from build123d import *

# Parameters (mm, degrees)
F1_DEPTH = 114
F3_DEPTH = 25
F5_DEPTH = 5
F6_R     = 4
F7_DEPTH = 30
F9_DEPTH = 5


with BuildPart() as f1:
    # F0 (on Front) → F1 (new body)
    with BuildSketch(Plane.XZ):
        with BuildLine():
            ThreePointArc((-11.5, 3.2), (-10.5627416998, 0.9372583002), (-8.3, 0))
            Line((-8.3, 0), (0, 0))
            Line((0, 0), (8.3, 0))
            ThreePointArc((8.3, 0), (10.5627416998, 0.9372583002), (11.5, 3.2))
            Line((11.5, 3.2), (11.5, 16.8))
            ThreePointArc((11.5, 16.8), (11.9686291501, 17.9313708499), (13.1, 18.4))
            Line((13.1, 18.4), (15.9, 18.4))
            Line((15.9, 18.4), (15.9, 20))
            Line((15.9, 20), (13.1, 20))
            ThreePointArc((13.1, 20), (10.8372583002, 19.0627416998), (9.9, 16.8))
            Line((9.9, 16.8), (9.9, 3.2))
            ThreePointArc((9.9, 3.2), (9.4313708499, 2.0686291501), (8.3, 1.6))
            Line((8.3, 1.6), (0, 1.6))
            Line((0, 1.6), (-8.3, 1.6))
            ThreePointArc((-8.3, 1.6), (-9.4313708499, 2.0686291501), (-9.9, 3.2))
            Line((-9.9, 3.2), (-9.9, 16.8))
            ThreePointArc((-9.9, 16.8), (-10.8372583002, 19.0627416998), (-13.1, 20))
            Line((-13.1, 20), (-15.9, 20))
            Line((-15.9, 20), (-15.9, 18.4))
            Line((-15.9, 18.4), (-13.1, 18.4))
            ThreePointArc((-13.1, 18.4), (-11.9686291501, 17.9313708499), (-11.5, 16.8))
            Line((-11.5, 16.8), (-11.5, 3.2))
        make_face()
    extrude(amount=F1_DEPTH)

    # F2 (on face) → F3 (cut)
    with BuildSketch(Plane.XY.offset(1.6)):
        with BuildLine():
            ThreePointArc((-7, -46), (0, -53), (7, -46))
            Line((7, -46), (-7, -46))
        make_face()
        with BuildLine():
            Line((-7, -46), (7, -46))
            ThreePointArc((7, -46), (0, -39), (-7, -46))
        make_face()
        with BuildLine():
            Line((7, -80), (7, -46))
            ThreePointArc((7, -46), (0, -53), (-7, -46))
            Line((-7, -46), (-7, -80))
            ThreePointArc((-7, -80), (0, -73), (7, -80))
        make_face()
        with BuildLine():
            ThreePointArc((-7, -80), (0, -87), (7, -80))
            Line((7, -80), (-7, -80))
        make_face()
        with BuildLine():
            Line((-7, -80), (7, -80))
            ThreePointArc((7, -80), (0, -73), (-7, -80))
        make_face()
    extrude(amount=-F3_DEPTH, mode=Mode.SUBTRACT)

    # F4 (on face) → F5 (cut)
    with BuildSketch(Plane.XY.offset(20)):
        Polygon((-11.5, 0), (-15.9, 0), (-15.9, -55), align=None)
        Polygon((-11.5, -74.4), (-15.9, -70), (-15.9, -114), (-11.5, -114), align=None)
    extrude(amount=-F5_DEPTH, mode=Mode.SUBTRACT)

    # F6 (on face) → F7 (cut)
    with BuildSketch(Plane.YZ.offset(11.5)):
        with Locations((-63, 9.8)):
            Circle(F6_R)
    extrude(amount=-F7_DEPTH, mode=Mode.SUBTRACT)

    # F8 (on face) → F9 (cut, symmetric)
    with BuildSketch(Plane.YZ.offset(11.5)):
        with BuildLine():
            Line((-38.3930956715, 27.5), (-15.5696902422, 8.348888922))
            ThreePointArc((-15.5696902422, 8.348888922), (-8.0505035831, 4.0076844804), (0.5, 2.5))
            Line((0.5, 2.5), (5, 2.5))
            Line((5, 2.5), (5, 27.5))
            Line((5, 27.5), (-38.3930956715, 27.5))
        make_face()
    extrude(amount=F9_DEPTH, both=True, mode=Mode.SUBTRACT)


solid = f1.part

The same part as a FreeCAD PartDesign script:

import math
import FreeCAD as App
import Part
import Sketcher
from FreeCAD import Vector
Q = App.Units.Quantity


def add_polygon(sketch, points):
    """Adds a closed chain of lines whose ends are joined by coincident constraints."""
    first, n = sketch.GeometryCount, len(points)
    for a, b in zip(points, points[1:] + points[:1]):
        sketch.addGeometry(Part.LineSegment(App.Vector(*a, 0), App.Vector(*b, 0)), False)
    for i in range(n):
        sketch.addConstraint(Sketcher.Constraint("Coincident", first + i, 2, first + (i + 1) % n, 1))

doc = App.newDocument("Part")
body = doc.addObject("PartDesign::Body", "Body")

sketch1 = body.newObject("Sketcher::SketchObject", "Sketch")
sketch1.AttachmentSupport = (doc.getObject("XZ_Plane"), [""])
sketch1.MapMode = "FlatFace"
sketch1.addGeometry(Part.ArcOfCircle(Part.Circle(Vector(-8.3, 3.2, 0), Vector(0, 0, 1), 3.2), math.radians(180), math.radians(270)), False)
sketch1.addGeometry(Part.LineSegment(Vector(-8.3, 0, 0), Vector(8.3, 0, 0)), False)
sketch1.addGeometry(Part.ArcOfCircle(Part.Circle(Vector(8.3, 3.2, 0), Vector(0, 0, 1), 3.2), math.radians(-90), math.radians(0)), False)
sketch1.addGeometry(Part.LineSegment(Vector(11.5, 3.2, 0), Vector(11.5, 16.8, 0)), False)
sketch1.addGeometry(Part.ArcOfCircle(Part.Circle(Vector(13.1, 16.8, 0), Vector(0, 0, 1), 1.6), math.radians(90), math.radians(180)), False)
sketch1.addGeometry(Part.LineSegment(Vector(13.1, 18.4, 0), Vector(15.9, 18.4, 0)), False)
sketch1.addGeometry(Part.LineSegment(Vector(15.9, 18.4, 0), Vector(15.9, 20, 0)), False)
sketch1.addGeometry(Part.LineSegment(Vector(15.9, 20, 0), Vector(13.1, 20, 0)), False)
sketch1.addGeometry(Part.ArcOfCircle(Part.Circle(Vector(13.1, 16.8, 0), Vector(0, 0, 1), 3.2), math.radians(90), math.radians(180)), False)
sketch1.addGeometry(Part.LineSegment(Vector(9.9, 16.8, 0), Vector(9.9, 3.2, 0)), False)
sketch1.addGeometry(Part.ArcOfCircle(Part.Circle(Vector(8.3, 3.2, 0), Vector(0, 0, 1), 1.6), math.radians(-90), math.radians(0)), False)
sketch1.addGeometry(Part.LineSegment(Vector(8.3, 1.6, 0), Vector(-8.3, 1.6, 0)), False)
sketch1.addGeometry(Part.ArcOfCircle(Part.Circle(Vector(-8.3, 3.2, 0), Vector(0, 0, 1), 1.6), math.radians(180), math.radians(270)), False)
sketch1.addGeometry(Part.LineSegment(Vector(-9.9, 3.2, 0), Vector(-9.9, 16.8, 0)), False)
sketch1.addGeometry(Part.ArcOfCircle(Part.Circle(Vector(-13.1, 16.8, 0), Vector(0, 0, 1), 3.2), math.radians(0), math.radians(90)), False)
sketch1.addGeometry(Part.LineSegment(Vector(-13.1, 20, 0), Vector(-15.9, 20, 0)), False)
sketch1.addGeometry(Part.LineSegment(Vector(-15.9, 20, 0), Vector(-15.9, 18.4, 0)), False)
sketch1.addGeometry(Part.LineSegment(Vector(-15.9, 18.4, 0), Vector(-13.1, 18.4, 0)), False)
sketch1.addGeometry(Part.ArcOfCircle(Part.Circle(Vector(-13.1, 16.8, 0), Vector(0, 0, 1), 1.6), math.radians(0), math.radians(90)), False)
sketch1.addGeometry(Part.LineSegment(Vector(-11.5, 16.8, 0), Vector(-11.5, 3.2, 0)), False)
sketch1.addConstraint(Sketcher.Constraint("Tangent", 0, 2, 1, 1))
sketch1.addConstraint(Sketcher.Constraint("Tangent", 1, 2, 2, 1))
sketch1.addConstraint(Sketcher.Constraint("Tangent", 2, 2, 3, 1))
sketch1.addConstraint(Sketcher.Constraint("Tangent", 3, 2, 4, 2))
sketch1.addConstraint(Sketcher.Constraint("Tangent", 4, 1, 5, 1))
sketch1.addConstraint(Sketcher.Constraint("Coincident", 5, 2, 6, 1))
sketch1.addConstraint(Sketcher.Constraint("Coincident", 6, 2, 7, 1))
sketch1.addConstraint(Sketcher.Constraint("Tangent", 7, 2, 8, 1))
sketch1.addConstraint(Sketcher.Constraint("Tangent", 8, 2, 9, 1))
sketch1.addConstraint(Sketcher.Constraint("Tangent", 9, 2, 10, 2))
sketch1.addConstraint(Sketcher.Constraint("Tangent", 10, 1, 11, 1))
sketch1.addConstraint(Sketcher.Constraint("Tangent", 11, 2, 12, 2))
sketch1.addConstraint(Sketcher.Constraint("Tangent", 12, 1, 13, 1))
sketch1.addConstraint(Sketcher.Constraint("Tangent", 13, 2, 14, 1))
sketch1.addConstraint(Sketcher.Constraint("Tangent", 14, 2, 15, 1))
sketch1.addConstraint(Sketcher.Constraint("Coincident", 15, 2, 16, 1))
sketch1.addConstraint(Sketcher.Constraint("Coincident", 16, 2, 17, 1))
sketch1.addConstraint(Sketcher.Constraint("Tangent", 17, 2, 18, 2))
sketch1.addConstraint(Sketcher.Constraint("Tangent", 18, 1, 19, 1))
sketch1.addConstraint(Sketcher.Constraint("Tangent", 19, 2, 0, 1))
sketch1.addConstraint(Sketcher.Constraint("Horizontal", 1))
sketch1.addConstraint(Sketcher.Constraint("Vertical", 3))
sketch1.addConstraint(Sketcher.Constraint("Horizontal", 5))
sketch1.addConstraint(Sketcher.Constraint("Vertical", 6))
sketch1.addConstraint(Sketcher.Constraint("Horizontal", 7))
sketch1.addConstraint(Sketcher.Constraint("Vertical", 9))
sketch1.addConstraint(Sketcher.Constraint("Horizontal", 11))
sketch1.addConstraint(Sketcher.Constraint("Vertical", 13))
sketch1.addConstraint(Sketcher.Constraint("Horizontal", 15))
sketch1.addConstraint(Sketcher.Constraint("Vertical", 16))
sketch1.addConstraint(Sketcher.Constraint("Horizontal", 17))
sketch1.addConstraint(Sketcher.Constraint("Vertical", 19))
sketch1.addConstraint(Sketcher.Constraint("Coincident", 8, 3, 4, 3))
sketch1.addConstraint(Sketcher.Constraint("Coincident", 10, 3, 2, 3))
sketch1.addConstraint(Sketcher.Constraint("Coincident", 12, 3, 0, 3))
sketch1.addConstraint(Sketcher.Constraint("Coincident", 18, 3, 14, 3))
sketch1.addConstraint(Sketcher.Constraint("Equal", 0, 2))
sketch1.addConstraint(Sketcher.Constraint("Equal", 2, 8))
sketch1.addConstraint(Sketcher.Constraint("Equal", 8, 14))
sketch1.addConstraint(Sketcher.Constraint("Symmetric", 0, 2, 1, 2, -1, 1))
sketch1.addConstraint(Sketcher.Constraint("Symmetric", 6, 2, 15, 2, -2))
sketch1.addConstraint(Sketcher.Constraint("Radius", 0, 3.2))
sketch1.addConstraint(Sketcher.Constraint("Radius", 4, 1.6))
sketch1.addConstraint(Sketcher.Constraint("DistanceX", 1, 1, 1, 2, 16.6))
sketch1.addConstraint(Sketcher.Constraint("DistanceX", 5, 1, 5, 2, 2.8))
sketch1.addConstraint(Sketcher.Constraint("DistanceY", 3, 1, 3, 2, 13.6))
pad1 = body.newObject("PartDesign::Pad", "Pad")
pad1.Profile = sketch1
pad1.Length = 114

sketch2 = body.newObject("Sketcher::SketchObject", "Sketch001")
sketch2.AttachmentSupport = (doc.getObject("XY_Plane"), [""])
sketch2.MapMode = "FlatFace"
sketch2.AttachmentOffset = App.Placement(Vector(0, 0, 1.6), App.Rotation())
sketch2.addGeometry(Part.ArcOfCircle(Part.Circle(Vector(0, -46, 0), Vector(0, 0, 1), 7), math.radians(0), math.radians(180)), False)
sketch2.addGeometry(Part.LineSegment(Vector(-7, -46, 0), Vector(-7, -80, 0)), False)
sketch2.addGeometry(Part.ArcOfCircle(Part.Circle(Vector(0, -80, 0), Vector(0, 0, 1), 7), math.radians(180), math.radians(360)), False)
sketch2.addGeometry(Part.LineSegment(Vector(7, -80, 0), Vector(7, -46, 0)), False)
sketch2.addConstraint(Sketcher.Constraint("Tangent", 0, 2, 1, 1))
sketch2.addConstraint(Sketcher.Constraint("Tangent", 1, 2, 2, 1))
sketch2.addConstraint(Sketcher.Constraint("Tangent", 2, 2, 3, 1))
sketch2.addConstraint(Sketcher.Constraint("Tangent", 3, 2, 0, 1))
sketch2.addConstraint(Sketcher.Constraint("Vertical", 1))
sketch2.addConstraint(Sketcher.Constraint("Vertical", 3))
sketch2.addConstraint(Sketcher.Constraint("PointOnObject", 0, 3, -2))
sketch2.addConstraint(Sketcher.Constraint("Radius", 0, 7.0))
sketch2.addConstraint(Sketcher.Constraint("DistanceY", 1, 2, 1, 1, 34.0))
sketch2.addConstraint(Sketcher.Constraint("DistanceY", 0, 3, -1, 1, 46.0))
pocket1 = body.newObject("PartDesign::Pocket", "Pocket")
pocket1.Profile = sketch2
pocket1.Length = 25

sketch3 = body.newObject("Sketcher::SketchObject", "Sketch002")
sketch3.AttachmentSupport = (doc.getObject("XY_Plane"), [""])
sketch3.MapMode = "FlatFace"
sketch3.AttachmentOffset = App.Placement(Vector(0, 0, 20), App.Rotation())
add_polygon(sketch3, [(-11.5, 0), (-15.9, 0), (-15.9, -55)])
add_polygon(sketch3, [(-11.5, -74.4), (-15.9, -70), (-15.9, -114), (-11.5, -114)])
sketch3.addConstraint(Sketcher.Constraint("Horizontal", 0))
sketch3.addConstraint(Sketcher.Constraint("Vertical", 1))
sketch3.addConstraint(Sketcher.Constraint("Vertical", 4))
sketch3.addConstraint(Sketcher.Constraint("Horizontal", 5))
sketch3.addConstraint(Sketcher.Constraint("Vertical", 6))
sketch3.addConstraint(Sketcher.Constraint("PointOnObject", 0, 2, -1))
sketch3.addConstraint(Sketcher.Constraint("Vertical", 1, 2, 3, 2))
sketch3.addConstraint(Sketcher.Constraint("Vertical", 2, 2, 5, 2))
sketch3.addConstraint(Sketcher.Constraint("DistanceY", 1, 2, 1, 1, 55.0))
sketch3.addConstraint(Sketcher.Constraint("DistanceY", 4, 2, 4, 1, 44.0))
sketch3.addConstraint(Sketcher.Constraint("Angle", 3, Q("135 deg")))
sketch3.addConstraint(Sketcher.Constraint("DistanceX", 0, 2, 0, 1, 4.4))
sketch3.addConstraint(Sketcher.Constraint("DistanceY", 3, 2, -1, 1, 70.0))
sketch3.addConstraint(Sketcher.Constraint("DistanceX", 0, 2, -1, 1, 15.9))
pocket2 = body.newObject("PartDesign::Pocket", "Pocket001")
pocket2.Profile = sketch3
pocket2.Length = 5

sketch4 = body.newObject("Sketcher::SketchObject", "Sketch003")
sketch4.AttachmentSupport = (doc.getObject("YZ_Plane"), [""])
sketch4.MapMode = "FlatFace"
sketch4.AttachmentOffset = App.Placement(Vector(0, 0, 11.5), App.Rotation())
sketch4.addGeometry(Part.Circle(Vector(-63, 9.8, 0), Vector(0, 0, 1), 4), False)
sketch4.addConstraint(Sketcher.Constraint("Diameter", 0, 8.0))
sketch4.addConstraint(Sketcher.Constraint("DistanceX", 0, 3, -1, 1, 63.0))
sketch4.addConstraint(Sketcher.Constraint("DistanceY", -1, 1, 0, 3, 9.8))
pocket3 = body.newObject("PartDesign::Pocket", "Pocket002")
pocket3.Profile = sketch4
pocket3.Length = 30

sketch5 = body.newObject("Sketcher::SketchObject", "Sketch004")
sketch5.AttachmentSupport = (doc.getObject("YZ_Plane"), [""])
sketch5.MapMode = "FlatFace"
sketch5.AttachmentOffset = App.Placement(Vector(0, 0, 11.5), App.Rotation())
sketch5.addGeometry(Part.LineSegment(Vector(-38.4, 27.5, 0), Vector(-15.6, 8.3, 0)), False)
sketch5.addGeometry(Part.ArcOfCircle(Part.Circle(Vector(0.5, 27.5, 0), Vector(0, 0, 1), 25), math.radians(-130), math.radians(-90)), False)
sketch5.addGeometry(Part.LineSegment(Vector(0.5, 2.5, 0), Vector(5, 2.5, 0)), False)
sketch5.addGeometry(Part.LineSegment(Vector(5, 2.5, 0), Vector(5, 27.5, 0)), False)
sketch5.addGeometry(Part.LineSegment(Vector(5, 27.5, 0), Vector(-38.4, 27.5, 0)), False)
sketch5.addConstraint(Sketcher.Constraint("Tangent", 0, 2, 1, 1))
sketch5.addConstraint(Sketcher.Constraint("Tangent", 1, 2, 2, 1))
sketch5.addConstraint(Sketcher.Constraint("Coincident", 2, 2, 3, 1))
sketch5.addConstraint(Sketcher.Constraint("Coincident", 3, 2, 4, 1))
sketch5.addConstraint(Sketcher.Constraint("Coincident", 4, 2, 0, 1))
sketch5.addConstraint(Sketcher.Constraint("Horizontal", 2))
sketch5.addConstraint(Sketcher.Constraint("Vertical", 3))
sketch5.addConstraint(Sketcher.Constraint("Horizontal", 4))
sketch5.addConstraint(Sketcher.Constraint("Horizontal", 1, 3, 3, 2))
sketch5.addConstraint(Sketcher.Constraint("Radius", 1, 25.0))
sketch5.addConstraint(Sketcher.Constraint("Angle", 0, Q("-40 deg")))
sketch5.addConstraint(Sketcher.Constraint("DistanceX", 2, 1, 2, 2, 4.5))
sketch5.addConstraint(Sketcher.Constraint("DistanceX", -1, 1, 2, 2, 5.0))
sketch5.addConstraint(Sketcher.Constraint("DistanceY", -1, 1, 1, 3, 27.5))
pocket4 = body.newObject("PartDesign::Pocket", "Pocket003")
pocket4.Profile = sketch5
pocket4.Length = 10
pocket4.Midplane = True

doc.recompute()
